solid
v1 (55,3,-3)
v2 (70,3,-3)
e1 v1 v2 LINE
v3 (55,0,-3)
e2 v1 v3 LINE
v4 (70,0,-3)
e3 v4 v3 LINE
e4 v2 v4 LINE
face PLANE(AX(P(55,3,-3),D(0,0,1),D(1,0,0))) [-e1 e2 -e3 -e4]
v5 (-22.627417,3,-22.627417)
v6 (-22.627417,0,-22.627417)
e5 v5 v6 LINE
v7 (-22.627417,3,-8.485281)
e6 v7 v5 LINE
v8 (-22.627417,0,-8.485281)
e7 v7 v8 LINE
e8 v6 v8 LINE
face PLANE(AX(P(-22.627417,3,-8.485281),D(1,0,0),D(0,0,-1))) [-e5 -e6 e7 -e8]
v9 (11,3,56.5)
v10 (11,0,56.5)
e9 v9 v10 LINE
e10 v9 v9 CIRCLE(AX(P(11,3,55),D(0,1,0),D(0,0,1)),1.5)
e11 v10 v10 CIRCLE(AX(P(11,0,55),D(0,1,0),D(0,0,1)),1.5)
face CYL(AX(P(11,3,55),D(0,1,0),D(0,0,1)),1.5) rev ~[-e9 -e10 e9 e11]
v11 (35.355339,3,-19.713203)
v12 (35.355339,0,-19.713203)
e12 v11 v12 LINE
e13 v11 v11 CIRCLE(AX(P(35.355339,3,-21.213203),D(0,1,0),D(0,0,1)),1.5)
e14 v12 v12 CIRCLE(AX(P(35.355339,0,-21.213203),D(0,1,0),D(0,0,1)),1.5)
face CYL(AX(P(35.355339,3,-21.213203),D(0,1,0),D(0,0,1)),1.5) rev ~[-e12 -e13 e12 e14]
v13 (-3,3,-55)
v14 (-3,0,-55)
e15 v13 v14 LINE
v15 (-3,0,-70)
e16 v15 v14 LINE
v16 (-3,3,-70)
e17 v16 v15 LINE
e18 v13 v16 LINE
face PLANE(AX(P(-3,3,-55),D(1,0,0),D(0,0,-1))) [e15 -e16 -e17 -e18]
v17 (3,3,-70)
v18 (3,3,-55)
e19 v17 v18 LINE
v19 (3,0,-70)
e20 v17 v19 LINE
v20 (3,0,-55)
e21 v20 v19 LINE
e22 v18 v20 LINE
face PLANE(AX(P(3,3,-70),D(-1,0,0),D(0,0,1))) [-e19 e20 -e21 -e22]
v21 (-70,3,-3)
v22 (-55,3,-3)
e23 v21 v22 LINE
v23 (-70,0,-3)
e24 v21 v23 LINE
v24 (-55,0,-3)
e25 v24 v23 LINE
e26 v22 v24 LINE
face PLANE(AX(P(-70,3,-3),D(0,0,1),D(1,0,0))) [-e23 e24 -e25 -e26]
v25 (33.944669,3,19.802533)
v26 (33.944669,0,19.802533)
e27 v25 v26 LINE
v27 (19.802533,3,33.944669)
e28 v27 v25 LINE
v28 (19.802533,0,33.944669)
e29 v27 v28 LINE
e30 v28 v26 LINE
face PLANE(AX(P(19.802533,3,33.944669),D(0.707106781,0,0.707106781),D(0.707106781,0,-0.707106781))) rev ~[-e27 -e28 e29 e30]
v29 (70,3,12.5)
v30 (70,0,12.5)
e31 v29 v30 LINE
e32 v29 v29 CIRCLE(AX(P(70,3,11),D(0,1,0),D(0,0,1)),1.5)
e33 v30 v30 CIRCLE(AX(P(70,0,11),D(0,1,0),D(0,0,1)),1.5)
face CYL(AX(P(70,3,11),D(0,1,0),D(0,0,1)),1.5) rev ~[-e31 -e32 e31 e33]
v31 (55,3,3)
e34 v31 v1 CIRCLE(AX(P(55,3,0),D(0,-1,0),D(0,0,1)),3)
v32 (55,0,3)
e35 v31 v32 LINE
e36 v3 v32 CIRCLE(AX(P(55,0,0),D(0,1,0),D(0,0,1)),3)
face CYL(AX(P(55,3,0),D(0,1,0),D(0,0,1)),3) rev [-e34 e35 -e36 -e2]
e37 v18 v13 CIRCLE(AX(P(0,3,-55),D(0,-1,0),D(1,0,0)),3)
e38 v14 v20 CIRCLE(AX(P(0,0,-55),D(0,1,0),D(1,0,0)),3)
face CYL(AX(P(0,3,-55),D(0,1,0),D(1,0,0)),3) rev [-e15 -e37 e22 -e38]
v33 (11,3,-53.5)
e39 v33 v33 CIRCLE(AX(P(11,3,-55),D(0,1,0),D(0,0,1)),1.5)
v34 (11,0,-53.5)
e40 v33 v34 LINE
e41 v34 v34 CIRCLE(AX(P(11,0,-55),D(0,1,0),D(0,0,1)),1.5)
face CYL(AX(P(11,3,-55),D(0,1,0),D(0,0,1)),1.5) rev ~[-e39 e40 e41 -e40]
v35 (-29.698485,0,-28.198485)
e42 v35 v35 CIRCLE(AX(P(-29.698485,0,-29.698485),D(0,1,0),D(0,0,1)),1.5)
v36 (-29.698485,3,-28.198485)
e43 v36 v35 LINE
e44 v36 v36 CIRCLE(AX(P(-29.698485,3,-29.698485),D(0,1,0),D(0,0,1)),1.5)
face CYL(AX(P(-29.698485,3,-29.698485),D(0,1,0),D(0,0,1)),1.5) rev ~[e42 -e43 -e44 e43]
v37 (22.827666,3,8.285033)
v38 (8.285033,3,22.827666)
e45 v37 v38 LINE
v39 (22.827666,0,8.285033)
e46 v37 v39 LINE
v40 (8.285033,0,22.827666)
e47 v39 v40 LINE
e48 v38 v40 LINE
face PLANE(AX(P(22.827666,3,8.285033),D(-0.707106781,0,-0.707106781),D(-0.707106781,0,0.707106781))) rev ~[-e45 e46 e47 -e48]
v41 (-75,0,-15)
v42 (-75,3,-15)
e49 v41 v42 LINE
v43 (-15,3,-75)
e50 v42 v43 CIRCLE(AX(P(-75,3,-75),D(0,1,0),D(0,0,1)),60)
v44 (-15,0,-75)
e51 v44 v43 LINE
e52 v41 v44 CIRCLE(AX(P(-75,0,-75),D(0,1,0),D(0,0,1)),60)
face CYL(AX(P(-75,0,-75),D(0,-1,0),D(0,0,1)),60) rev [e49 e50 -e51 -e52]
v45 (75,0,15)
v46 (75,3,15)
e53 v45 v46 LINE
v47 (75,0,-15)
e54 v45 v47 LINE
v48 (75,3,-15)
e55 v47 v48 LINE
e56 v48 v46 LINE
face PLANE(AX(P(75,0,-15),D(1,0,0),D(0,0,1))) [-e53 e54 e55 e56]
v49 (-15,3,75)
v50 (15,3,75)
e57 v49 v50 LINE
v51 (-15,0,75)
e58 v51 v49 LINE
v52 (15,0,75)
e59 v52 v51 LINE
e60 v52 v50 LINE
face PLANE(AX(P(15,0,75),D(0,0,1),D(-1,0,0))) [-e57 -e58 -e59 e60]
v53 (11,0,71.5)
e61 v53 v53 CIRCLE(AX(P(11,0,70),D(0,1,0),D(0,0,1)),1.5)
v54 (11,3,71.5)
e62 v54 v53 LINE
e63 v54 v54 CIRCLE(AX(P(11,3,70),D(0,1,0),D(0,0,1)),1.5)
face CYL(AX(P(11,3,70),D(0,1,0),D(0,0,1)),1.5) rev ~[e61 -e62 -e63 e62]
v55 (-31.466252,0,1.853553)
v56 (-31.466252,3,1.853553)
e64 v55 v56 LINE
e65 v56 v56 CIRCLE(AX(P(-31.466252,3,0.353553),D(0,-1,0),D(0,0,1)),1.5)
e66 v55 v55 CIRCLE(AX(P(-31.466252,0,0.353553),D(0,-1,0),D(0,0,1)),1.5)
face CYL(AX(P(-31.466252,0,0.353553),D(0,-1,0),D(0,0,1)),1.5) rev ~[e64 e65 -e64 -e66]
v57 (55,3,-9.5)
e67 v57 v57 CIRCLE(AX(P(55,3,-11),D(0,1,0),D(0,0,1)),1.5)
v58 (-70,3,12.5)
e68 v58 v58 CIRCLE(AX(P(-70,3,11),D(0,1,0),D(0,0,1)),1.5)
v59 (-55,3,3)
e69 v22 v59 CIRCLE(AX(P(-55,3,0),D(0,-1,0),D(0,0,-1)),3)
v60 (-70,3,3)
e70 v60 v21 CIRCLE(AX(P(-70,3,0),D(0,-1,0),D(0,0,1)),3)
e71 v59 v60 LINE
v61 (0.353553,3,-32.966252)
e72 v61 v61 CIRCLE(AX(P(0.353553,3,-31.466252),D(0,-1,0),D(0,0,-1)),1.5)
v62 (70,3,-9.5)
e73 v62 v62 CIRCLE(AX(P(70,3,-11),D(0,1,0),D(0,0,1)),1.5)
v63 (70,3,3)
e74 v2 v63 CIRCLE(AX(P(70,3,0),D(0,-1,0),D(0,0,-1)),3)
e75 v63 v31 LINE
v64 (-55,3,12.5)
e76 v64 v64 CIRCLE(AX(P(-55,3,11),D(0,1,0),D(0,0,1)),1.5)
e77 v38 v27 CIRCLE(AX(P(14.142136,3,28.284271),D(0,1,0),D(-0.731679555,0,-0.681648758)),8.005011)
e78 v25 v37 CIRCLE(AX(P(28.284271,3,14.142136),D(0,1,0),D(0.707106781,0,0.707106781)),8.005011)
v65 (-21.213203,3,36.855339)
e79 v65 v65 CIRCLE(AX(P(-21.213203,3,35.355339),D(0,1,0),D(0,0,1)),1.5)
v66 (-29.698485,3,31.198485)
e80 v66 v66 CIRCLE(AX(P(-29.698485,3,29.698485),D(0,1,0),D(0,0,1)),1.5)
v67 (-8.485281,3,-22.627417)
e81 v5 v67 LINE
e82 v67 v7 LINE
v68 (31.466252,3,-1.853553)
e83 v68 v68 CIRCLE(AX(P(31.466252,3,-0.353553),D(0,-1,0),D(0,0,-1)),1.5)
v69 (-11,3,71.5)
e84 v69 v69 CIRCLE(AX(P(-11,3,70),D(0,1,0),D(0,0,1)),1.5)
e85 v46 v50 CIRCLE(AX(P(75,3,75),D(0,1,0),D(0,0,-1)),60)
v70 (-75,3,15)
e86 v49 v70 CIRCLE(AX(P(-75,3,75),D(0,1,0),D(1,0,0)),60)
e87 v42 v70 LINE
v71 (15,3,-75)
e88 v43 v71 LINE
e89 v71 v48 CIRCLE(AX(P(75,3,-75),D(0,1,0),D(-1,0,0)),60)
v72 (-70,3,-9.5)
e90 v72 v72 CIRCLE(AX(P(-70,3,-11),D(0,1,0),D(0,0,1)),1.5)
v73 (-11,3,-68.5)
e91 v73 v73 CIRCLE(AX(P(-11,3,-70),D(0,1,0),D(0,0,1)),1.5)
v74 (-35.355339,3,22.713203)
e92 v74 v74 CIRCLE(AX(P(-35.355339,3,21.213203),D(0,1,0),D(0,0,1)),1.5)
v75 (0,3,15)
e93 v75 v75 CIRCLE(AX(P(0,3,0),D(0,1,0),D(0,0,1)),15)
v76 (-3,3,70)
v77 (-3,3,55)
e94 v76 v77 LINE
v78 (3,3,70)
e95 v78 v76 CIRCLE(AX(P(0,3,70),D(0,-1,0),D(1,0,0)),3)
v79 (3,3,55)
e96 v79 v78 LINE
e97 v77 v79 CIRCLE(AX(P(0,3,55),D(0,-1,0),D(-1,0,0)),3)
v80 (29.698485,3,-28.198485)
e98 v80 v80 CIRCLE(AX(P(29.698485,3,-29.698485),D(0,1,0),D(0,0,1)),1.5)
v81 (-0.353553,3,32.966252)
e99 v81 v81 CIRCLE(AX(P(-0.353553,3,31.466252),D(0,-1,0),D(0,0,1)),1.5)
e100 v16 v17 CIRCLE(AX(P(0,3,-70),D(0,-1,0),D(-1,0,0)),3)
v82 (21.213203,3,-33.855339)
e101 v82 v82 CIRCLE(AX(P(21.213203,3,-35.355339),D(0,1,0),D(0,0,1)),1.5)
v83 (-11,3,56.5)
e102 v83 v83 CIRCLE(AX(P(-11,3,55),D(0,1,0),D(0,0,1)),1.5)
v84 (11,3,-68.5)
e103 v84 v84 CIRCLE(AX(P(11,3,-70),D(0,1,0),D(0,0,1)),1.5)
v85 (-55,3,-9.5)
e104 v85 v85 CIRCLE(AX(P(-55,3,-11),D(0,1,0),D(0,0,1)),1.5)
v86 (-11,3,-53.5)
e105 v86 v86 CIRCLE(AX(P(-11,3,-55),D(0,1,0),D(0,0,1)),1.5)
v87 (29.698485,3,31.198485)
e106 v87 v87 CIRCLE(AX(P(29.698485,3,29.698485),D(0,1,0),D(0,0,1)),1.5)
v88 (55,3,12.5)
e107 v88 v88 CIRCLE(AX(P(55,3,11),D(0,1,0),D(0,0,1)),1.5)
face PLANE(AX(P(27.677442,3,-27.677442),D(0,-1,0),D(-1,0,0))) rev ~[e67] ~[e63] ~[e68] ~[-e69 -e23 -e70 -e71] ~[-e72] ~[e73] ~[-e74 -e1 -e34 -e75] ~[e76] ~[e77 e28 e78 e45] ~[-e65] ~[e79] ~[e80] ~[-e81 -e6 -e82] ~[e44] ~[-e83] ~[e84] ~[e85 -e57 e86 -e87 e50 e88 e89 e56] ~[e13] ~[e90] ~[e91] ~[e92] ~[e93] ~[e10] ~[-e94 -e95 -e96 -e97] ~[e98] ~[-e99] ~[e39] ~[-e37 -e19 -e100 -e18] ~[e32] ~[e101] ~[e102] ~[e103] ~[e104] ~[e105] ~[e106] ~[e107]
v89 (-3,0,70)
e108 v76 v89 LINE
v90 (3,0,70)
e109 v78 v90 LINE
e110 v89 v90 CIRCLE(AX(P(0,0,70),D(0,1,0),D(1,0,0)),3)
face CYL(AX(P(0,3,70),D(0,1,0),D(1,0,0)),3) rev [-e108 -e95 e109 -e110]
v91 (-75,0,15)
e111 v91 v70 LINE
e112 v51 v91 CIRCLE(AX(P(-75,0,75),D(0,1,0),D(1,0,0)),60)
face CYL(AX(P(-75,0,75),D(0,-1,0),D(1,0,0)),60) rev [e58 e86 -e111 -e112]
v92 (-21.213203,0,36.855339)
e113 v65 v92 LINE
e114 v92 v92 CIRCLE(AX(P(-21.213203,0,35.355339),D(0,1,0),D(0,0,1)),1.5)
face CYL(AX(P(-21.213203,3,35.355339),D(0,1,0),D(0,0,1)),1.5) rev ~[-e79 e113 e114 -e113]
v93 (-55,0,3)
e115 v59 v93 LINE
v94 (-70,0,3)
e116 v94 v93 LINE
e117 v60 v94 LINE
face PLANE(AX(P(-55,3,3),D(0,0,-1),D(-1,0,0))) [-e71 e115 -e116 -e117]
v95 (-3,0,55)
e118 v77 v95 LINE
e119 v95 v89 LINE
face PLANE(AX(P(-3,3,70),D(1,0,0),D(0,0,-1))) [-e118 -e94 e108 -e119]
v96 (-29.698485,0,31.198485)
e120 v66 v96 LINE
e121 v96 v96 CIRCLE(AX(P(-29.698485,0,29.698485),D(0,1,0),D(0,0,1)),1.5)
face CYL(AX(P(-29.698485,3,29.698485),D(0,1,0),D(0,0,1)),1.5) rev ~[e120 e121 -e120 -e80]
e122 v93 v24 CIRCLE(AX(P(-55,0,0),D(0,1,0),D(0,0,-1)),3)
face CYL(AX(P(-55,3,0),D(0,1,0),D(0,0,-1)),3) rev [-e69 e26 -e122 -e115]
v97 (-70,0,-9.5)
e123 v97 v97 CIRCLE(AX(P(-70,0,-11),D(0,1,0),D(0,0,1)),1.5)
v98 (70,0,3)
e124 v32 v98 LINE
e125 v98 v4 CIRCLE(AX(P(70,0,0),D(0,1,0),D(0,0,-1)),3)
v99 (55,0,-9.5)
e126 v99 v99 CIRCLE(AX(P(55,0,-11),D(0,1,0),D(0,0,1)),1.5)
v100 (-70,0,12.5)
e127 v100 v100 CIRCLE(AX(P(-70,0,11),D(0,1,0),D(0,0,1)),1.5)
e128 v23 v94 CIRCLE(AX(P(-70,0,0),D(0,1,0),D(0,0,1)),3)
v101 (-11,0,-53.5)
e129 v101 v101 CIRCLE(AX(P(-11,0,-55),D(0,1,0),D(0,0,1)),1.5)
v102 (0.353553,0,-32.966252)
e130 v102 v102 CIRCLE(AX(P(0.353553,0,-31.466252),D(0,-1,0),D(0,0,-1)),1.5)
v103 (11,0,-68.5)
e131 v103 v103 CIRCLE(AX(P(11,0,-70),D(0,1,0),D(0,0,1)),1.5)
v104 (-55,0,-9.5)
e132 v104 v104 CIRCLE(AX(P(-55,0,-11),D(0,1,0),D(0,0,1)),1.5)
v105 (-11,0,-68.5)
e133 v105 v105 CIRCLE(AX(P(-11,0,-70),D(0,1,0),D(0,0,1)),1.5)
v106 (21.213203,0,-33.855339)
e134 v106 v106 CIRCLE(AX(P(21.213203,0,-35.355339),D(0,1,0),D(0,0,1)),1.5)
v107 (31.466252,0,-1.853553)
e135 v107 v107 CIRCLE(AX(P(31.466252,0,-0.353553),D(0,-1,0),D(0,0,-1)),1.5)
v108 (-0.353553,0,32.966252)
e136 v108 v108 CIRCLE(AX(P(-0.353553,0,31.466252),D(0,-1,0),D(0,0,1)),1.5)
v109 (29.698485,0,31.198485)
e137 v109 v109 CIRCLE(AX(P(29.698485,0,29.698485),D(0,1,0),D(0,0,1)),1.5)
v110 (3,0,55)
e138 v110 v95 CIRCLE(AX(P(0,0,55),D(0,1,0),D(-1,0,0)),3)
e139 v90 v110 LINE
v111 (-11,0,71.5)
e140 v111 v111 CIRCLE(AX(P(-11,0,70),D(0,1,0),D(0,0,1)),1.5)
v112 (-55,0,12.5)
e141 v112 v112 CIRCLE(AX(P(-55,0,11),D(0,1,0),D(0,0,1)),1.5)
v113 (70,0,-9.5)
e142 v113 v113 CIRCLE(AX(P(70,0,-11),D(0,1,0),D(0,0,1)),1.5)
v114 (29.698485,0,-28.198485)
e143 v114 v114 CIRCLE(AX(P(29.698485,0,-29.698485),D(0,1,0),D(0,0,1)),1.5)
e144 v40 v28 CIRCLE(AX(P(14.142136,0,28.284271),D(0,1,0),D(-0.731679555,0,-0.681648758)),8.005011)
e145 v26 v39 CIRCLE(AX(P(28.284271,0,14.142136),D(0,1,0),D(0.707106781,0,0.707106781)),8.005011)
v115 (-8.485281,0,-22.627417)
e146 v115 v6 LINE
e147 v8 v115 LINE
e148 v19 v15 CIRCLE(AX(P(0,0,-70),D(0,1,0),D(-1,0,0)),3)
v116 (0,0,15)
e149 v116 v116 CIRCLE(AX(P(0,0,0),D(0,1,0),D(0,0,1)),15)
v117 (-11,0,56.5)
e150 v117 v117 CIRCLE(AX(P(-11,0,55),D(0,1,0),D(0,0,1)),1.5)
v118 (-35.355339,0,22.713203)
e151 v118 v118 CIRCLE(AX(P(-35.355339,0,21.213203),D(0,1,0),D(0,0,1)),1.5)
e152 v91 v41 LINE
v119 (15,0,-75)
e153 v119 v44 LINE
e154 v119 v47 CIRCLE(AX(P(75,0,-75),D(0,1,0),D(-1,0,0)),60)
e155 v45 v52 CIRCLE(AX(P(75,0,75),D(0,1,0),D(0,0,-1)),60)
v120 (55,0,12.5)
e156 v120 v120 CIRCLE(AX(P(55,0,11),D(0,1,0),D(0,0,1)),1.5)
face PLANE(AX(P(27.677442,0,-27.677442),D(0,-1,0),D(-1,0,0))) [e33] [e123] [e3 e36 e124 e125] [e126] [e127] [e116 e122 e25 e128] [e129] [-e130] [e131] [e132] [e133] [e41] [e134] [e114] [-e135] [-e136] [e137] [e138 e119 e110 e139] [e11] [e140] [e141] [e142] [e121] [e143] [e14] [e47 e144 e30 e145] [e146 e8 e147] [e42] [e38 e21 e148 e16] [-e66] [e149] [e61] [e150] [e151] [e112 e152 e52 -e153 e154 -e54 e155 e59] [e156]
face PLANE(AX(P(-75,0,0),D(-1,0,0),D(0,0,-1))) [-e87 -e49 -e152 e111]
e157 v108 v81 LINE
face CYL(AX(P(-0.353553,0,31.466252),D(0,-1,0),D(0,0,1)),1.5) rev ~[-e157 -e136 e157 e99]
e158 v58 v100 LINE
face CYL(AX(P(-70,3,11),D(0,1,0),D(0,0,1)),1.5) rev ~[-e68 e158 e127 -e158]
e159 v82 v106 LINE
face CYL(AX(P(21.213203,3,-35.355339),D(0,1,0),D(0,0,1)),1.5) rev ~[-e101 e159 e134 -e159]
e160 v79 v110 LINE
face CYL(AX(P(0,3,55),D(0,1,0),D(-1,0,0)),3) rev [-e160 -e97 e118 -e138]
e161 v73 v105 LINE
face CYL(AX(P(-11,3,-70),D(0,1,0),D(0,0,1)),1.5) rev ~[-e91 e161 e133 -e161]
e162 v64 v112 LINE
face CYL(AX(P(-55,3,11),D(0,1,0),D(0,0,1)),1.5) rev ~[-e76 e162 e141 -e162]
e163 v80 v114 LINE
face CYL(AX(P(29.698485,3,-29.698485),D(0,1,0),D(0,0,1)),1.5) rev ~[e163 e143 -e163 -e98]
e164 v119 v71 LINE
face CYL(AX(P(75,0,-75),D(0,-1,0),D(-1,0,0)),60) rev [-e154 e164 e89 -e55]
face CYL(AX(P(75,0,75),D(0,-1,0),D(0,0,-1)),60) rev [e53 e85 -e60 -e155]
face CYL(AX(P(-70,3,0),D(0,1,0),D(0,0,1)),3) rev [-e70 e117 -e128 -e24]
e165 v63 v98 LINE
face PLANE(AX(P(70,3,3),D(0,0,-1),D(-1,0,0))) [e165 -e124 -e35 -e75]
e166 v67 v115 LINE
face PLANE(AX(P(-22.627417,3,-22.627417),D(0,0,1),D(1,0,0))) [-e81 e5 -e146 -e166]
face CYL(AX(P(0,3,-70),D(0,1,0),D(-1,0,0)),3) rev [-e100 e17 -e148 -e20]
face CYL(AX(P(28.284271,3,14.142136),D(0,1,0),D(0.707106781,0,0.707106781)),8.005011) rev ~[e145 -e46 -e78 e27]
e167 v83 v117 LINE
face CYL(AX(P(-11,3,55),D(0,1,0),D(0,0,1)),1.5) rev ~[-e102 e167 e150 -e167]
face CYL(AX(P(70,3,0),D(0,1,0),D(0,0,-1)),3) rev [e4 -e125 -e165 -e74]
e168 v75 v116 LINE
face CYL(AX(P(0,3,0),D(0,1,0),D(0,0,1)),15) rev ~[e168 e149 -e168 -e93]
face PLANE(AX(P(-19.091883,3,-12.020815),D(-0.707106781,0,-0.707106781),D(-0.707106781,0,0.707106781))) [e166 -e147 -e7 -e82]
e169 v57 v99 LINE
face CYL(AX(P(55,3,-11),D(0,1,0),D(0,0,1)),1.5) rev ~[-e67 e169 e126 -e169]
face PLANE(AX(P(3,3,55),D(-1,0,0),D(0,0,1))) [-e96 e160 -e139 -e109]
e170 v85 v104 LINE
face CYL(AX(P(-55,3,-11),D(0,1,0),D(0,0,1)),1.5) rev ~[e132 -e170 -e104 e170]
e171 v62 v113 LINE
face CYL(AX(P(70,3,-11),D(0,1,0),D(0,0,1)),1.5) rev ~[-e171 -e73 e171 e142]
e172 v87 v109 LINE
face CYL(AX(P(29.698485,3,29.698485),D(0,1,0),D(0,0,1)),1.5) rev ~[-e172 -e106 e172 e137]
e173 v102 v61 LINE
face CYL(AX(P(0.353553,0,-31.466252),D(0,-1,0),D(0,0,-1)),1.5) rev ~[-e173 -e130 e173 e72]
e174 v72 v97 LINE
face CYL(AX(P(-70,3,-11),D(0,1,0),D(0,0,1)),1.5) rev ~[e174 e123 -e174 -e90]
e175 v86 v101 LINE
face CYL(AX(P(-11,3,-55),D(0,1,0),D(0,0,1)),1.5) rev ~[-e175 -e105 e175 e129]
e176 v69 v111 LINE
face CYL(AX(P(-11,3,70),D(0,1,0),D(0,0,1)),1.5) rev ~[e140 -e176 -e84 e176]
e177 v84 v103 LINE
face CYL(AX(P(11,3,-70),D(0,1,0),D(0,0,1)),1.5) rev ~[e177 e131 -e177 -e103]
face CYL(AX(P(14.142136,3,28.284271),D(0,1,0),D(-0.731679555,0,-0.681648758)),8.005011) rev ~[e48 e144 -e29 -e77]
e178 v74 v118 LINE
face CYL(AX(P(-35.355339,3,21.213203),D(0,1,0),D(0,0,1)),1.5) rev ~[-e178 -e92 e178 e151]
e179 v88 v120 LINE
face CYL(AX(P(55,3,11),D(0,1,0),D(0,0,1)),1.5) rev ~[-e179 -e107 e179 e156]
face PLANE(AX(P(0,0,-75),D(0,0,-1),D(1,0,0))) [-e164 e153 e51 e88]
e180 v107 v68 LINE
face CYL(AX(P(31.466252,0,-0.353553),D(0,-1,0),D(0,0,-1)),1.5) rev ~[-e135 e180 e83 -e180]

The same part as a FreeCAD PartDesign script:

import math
import FreeCAD as App
import Part
import Sketcher
Q = App.Units.Quantity


def add_polygon(sketch, points):
    """Adds a closed chain of lines whose ends are joined by coincident constraints."""
    first, n = sketch.GeometryCount, len(points)
    for a, b in zip(points, points[1:] + points[:1]):
        sketch.addGeometry(Part.LineSegment(App.Vector(*a, 0), App.Vector(*b, 0)), False)
    for i in range(n):
        sketch.addConstraint(Sketcher.Constraint("Coincident", first + i, 2, first + (i + 1) % n, 1))

doc = App.newDocument("Part")
params = doc.addObject("Spreadsheet::Sheet", "Params")
for row, (alias, value) in enumerate([
    ("sketch1_radius", "60 mm"),
    ("sketch1_diameter", "2.5 mm"),
    ("sketch1_width", "30 mm"),
    ("pad1_length", "3 mm"),
    ("sketch2_diameter", "3 mm"),
    ("pocket1_length", "3 mm"),
    ("sketch3_length", "10 mm"),
    ("pocket2_length", "3 mm"),
    ("sketch4_length", "20 mm"),
    ("pocket3_length", "3 mm"),
    ("sketch5_length", "5 mm"),
    ("pocket4_length", "10 mm"),
    ("sketch6_diameter", "3 mm"),
    ("pocket5_length", "10 mm"),
    ("sketch7_diameter", "3 mm"),
    ("pocket6_length", "10 mm"),
    ("sketch8_diameter", "3 mm"),
    ("pocket7_length", "10 mm"),
    ("sketch9_diameter", "30 mm"),
    ("pocket8_length", "10 mm"),
    ("sketch10_diameter", "3 mm"),
    ("pocket9_length", "10 mm"),
    ("sketch11_radius", "3 mm"),
    ("sketch11_width", "15 mm"),
    ("pocket10_length", "10 mm"),
], start=1):
    params.set(f"A{row}", alias)
    params.set(f"B{row}", "=" + value)
    params.setAlias(f"B{row}", alias)

body = doc.addObject("PartDesign::Body", "Body")

# Sketch on XZ plane
sketch1 = body.newObject("Sketcher::SketchObject", "Sketch")
sketch1.AttachmentSupport = (doc.getObject("XZ_Plane"), [""])
sketch1.MapMode = "FlatFace"
sketch1.addGeometry(Part.ArcOfCircle(Part.Circle(App.Vector(75, 75, 0), App.Vector(0, 0, 1), 60), math.radians(-180), math.radians(-90)), False)
sketch1.addGeometry(Part.LineSegment(App.Vector(75, 15, 0), App.Vector(75, -15, 0)), False)
sketch1.addGeometry(Part.ArcOfCircle(Part.Circle(App.Vector(75, -75, 0), App.Vector(0, 0, 1), 60), math.radians(90), math.radians(180)), False)
sketch1.addGeometry(Part.LineSegment(App.Vector(15, -75, 0), App.Vector(-15, -75, 0)), False)
sketch1.addGeometry(Part.ArcOfCircle(Part.Circle(App.Vector(-75, -75, 0), App.Vector(0, 0, 1), 60), math.radians(0), math.radians(90)), False)
sketch1.addGeometry(Part.LineSegment(App.Vector(-75, -15, 0), App.Vector(-75, 15, 0)), False)
sketch1.addGeometry(Part.ArcOfCircle(Part.Circle(App.Vector(-75, 75, 0), App.Vector(0, 0, 1), 60), math.radians(-90), math.radians(0)), False)
sketch1.addGeometry(Part.LineSegment(App.Vector(-15, 75, 0), App.Vector(15, 75, 0)), False)
sketch1.addGeometry(Part.Circle(App.Vector(11, 70, 0), App.Vector(0, 0, 1), 1.2), False)
sketch1.addGeometry(Part.Circle(App.Vector(70, 11, 0), App.Vector(0, 0, 1), 1.2), False)
sketch1.addGeometry(Part.Circle(App.Vector(11, -70, 0), App.Vector(0, 0, 1), 1.2), False)
sketch1.addGeometry(Part.Circle(App.Vector(70, -11, 0), App.Vector(0, 0, 1), 1.2), False)
sketch1.addGeometry(Part.Circle(App.Vector(-70, 11, 0), App.Vector(0, 0, 1), 1.2), False)
sketch1.addGeometry(Part.Circle(App.Vector(-11, 70, 0), App.Vector(0, 0, 1), 1.2), False)
sketch1.addGeometry(Part.Circle(App.Vector(-70, -11, 0), App.Vector(0, 0, 1), 1.2), False)
sketch1.addGeometry(Part.Circle(App.Vector(-11, -70, 0), App.Vector(0, 0, 1), 1.2), False)
sketch1.addConstraint(Sketcher.Constraint("Coincident", 0, 2, 1, 1))
sketch1.addConstraint(Sketcher.Constraint("Coincident", 1, 2, 2, 1))
sketch1.addConstraint(Sketcher.Constraint("Coincident", 2, 2, 3, 1))
sketch1.addConstraint(Sketcher.Constraint("Coincident", 3, 2, 4, 1))
sketch1.addConstraint(Sketcher.Constraint("Coincident", 4, 2, 5, 1))
sketch1.addConstraint(Sketcher.Constraint("Coincident", 5, 2, 6, 1))
sketch1.addConstraint(Sketcher.Constraint("Coincident", 6, 2, 7, 1))
sketch1.addConstraint(Sketcher.Constraint("Coincident", 7, 2, 0, 1))
sketch1.addConstraint(Sketcher.Constraint("Vertical", 1))
sketch1.addConstraint(Sketcher.Constraint("Horizontal", 3))
sketch1.addConstraint(Sketcher.Constraint("Vertical", 5))
sketch1.addConstraint(Sketcher.Constraint("Horizontal", 7))
sketch1.addConstraint(Sketcher.Constraint("Equal", 0, 2))
sketch1.addConstraint(Sketcher.Constraint("Equal", 2, 4))
sketch1.addConstraint(Sketcher.Constraint("Equal", 4, 6))
sketch1.addConstraint(Sketcher.Constraint("Equal", 8, 9))
sketch1.addConstraint(Sketcher.Constraint("Equal", 9, 10))
sketch1.addConstraint(Sketcher.Constraint("Equal", 10, 11))
sketch1.addConstraint(Sketcher.Constraint("Equal", 11, 12))
sketch1.addConstraint(Sketcher.Constraint("Equal", 12, 13))
sketch1.addConstraint(Sketcher.Constraint("Equal", 13, 14))
sketch1.addConstraint(Sketcher.Constraint("Equal", 14, 15))
sketch1.addConstraint(Sketcher.Constraint("Symmetric", 0, 3, 4, 3, -1, 1))
sketch1.addConstraint(Sketcher.Constraint("Symmetric", 2, 3, 6, 3, -1, 1))
sketch1.addConstraint(Sketcher.Constraint("Symmetric", 11, 3, 12, 3, -1, 1))
sketch1.addConstraint(Sketcher.Constraint("Symmetric", 10, 3, 13, 3, -1, 1))
sketch1.addConstraint(Sketcher.Constraint("Symmetric", 9, 3, 14, 3, -1, 1))
sketch1.addConstraint(Sketcher.Constraint("Symmetric", 8, 3, 15, 3, -1, 1))
sketch1.addConstraint(Sketcher.Constraint("Symmetric", 2, 3, 4, 3, -2))
sketch1.addConstraint(Sketcher.Constraint("Symmetric", 9, 3, 12, 3, -2))
sketch1.addConstraint(Sketcher.Constraint("Symmetric", 8, 3, 13, 3, -2))
sketch1.addConstraint(Sketcher.Constraint("Horizontal", 4, 3, 2, 2))
sketch1.addConstraint(Sketcher.Constraint("Horizontal", 0, 3, 6, 2))
sketch1.addConstraint(Sketcher.Constraint("Vertical", 2, 3, 0, 2))
sketch1.addConstraint(Sketcher.Constraint("Vertical", 6, 3, 4, 2))
sketch1.addConstraint(Sketcher.Constraint("Equal", 7, 1))
sketch1.addConstraint(Sketcher.Constraint("Radius", 0, Q("60 mm")))
sketch1.addConstraint(Sketcher.Constraint("Diameter", 8, Q("2.5 mm")))
sketch1.addConstraint(Sketcher.Constraint("DistanceX", 3, 2, 3, 1, Q("30 mm")))
sketch1.addConstraint(Sketcher.Constraint("DistanceX", -1, 1, 8, 3, Q("11 mm")))
sketch1.addConstraint(Sketcher.Constraint("DistanceY", -1, 1, 8, 3, Q("70 mm")))
sketch1.addConstraint(Sketcher.Constraint("DistanceX", -1, 1, 9, 3, Q("70 mm")))
sketch1.addConstraint(Sketcher.Constraint("DistanceY", -1, 1, 9, 3, Q("11 mm")))
sketch1.setExpression("Constraints[36]", "Params.sketch1_radius")
sketch1.setExpression("Constraints[37]", "Params.sketch1_diameter")
sketch1.setExpression("Constraints[38]", "Params.sketch1_width")
pad1 = body.newObject("PartDesign::Pad", "Pad")
pad1.Profile = sketch1
pad1.setExpression("Length", "Params.pad1_length")
pad1.Reversed = True

# Sketch on XZ plane
sketch2 = body.newObject("Sketcher::SketchObject", "Sketch001")
sketch2.AttachmentSupport = (doc.getObject("XZ_Plane"), [""])
sketch2.MapMode = "FlatFace"
sketch2.addGeometry(Part.Circle(App.Vector(0.4, -31.5, 0), App.Vector(0, 0, 1), 1.5), False)
sketch2.addGeometry(Part.Circle(App.Vector(31.5, -0.4, 0), App.Vector(0, 0, 1), 1.5), False)
sketch2.addGeometry(Part.Circle(App.Vector(-0.4, 31.5, 0), App.Vector(0, 0, 1), 1.5), False)
sketch2.addGeometry(Part.Circle(App.Vector(-31.5, 0.4, 0), App.Vector(0, 0, 1), 1.5), False)
sketch2.addConstraint(Sketcher.Constraint("Equal", 0, 1))
sketch2.addConstraint(Sketcher.Constraint("Equal", 1, 2))
sketch2.addConstraint(Sketcher.Constraint("Equal", 2, 3))
sketch2.addConstraint(Sketcher.Constraint("Symmetric", 0, 3, 2, 3, -1, 1))
sketch2.addConstraint(Sketcher.Constraint("Symmetric", 1, 3, 3, 3, -1, 1))
sketch2.addConstraint(Sketcher.Constraint("Diameter", 0, Q("3 mm")))
sketch2.addConstraint(Sketcher.Constraint("DistanceX", 0, 3, 1, 3, Q("31.112698 mm")))
sketch2.addConstraint(Sketcher.Constraint("DistanceY", 0, 3, 1, 3, Q("31.112698 mm")))
sketch2.addConstraint(Sketcher.Constraint("DistanceY", 0, 3, -1, 1, Q("31.466252 mm")))
sketch2.addConstraint(Sketcher.Constraint("DistanceX", -1, 1, 1, 3, Q("31.466252 mm")))
sketch2.setExpression("Constraints[5]", "Params.sketch2_diameter")
pocket1 = body.newObject("PartDesign::Pocket", "Pocket")
pocket1.Profile = sketch2
pocket1.setExpression("Length", "Params.pocket1_length")

# Sketch on XZ plane
sketch3 = body.newObject("Sketcher::SketchObject", "Sketch002")
sketch3.AttachmentSupport = (doc.getObject("XZ_Plane"), [""])
sketch3.MapMode = "FlatFace"
sketch3.AttachmentOffset = App.Placement(App.Vector(0, 0, -3), App.Rotation())
add_polygon(sketch3, [(-12, -19), (-23, -23), (-19, -12)])  # lines 0-2
sketch3.addConstraint(Sketcher.Constraint("Equal", 0, 1))
sketch3.addConstraint(Sketcher.Constraint("Angle", 2, Q("-45 deg")))
sketch3.addConstraint(Sketcher.Constraint("Distance", 2, Q("10 mm")))
sketch3.addConstraint(Sketcher.Constraint("DistanceY", 0, 2, 1, 2, Q("10.606602 mm")))
sketch3.addConstraint(Sketcher.Constraint("DistanceX", 0, 2, -1, 1, Q("22.627417 mm")))
sketch3.addConstraint(Sketcher.Constraint("DistanceY", 0, 2, -1, 1, Q("22.627417 mm")))
sketch3.setExpression("Constraints[5]", "Params.sketch3_length")
pocket2 = body.newObject("PartDesign::Pocket", "Pocket001")
pocket2.Profile = sketch3
pocket2.setExpression("Length", "Params.pocket2_length")
pocket2.Reversed = True

# Sketch on XZ plane
sketch4 = body.newObject("Sketcher::SketchObject", "Sketch003")
sketch4.AttachmentSupport = (doc.getObject("XZ_Plane"), [""])
sketch4.MapMode = "FlatFace"
sketch4.AttachmentOffset = App.Placement(App.Vector(0, 0, -3), App.Rotation())
sketch4.addGeometry(Part.ArcOfCircle(Part.Circle(App.Vector(28, 14, 0), App.Vector(0, 0, 1), 8), math.radians(-133), math.radians(45)), False)
sketch4.addGeometry(Part.LineSegment(App.Vector(23, 8, 0), App.Vector(8, 23, 0)), False)
sketch4.addGeometry(Part.ArcOfCircle(Part.Circle(App.Vector(14, 28, 0), App.Vector(0, 0, 1), 8), math.radians(45), math.radians(223)), False)
sketch4.addGeometry(Part.LineSegment(App.Vector(20, 34, 0), App.Vector(34, 20, 0)), False)
sketch4.addConstraint(Sketcher.Constraint("Coincident", 0, 1, 1, 1))
sketch4.addConstraint(Sketcher.Constraint("Coincident", 1, 2, 2, 2))
sketch4.addConstraint(Sketcher.Constraint("Tangent", 2, 1, 3, 1))
sketch4.addConstraint(Sketcher.Constraint("Tangent", 3, 2, 0, 2))
sketch4.addConstraint(Sketcher.Constraint("Equal", 0, 2))
sketch4.addConstraint(Sketcher.Constraint("Parallel", 1, 3))
sketch4.addConstraint(Sketcher.Constraint("Angle", 1, Q("135 deg")))
sketch4.addConstraint(Sketcher.Constraint("Distance", 3, Q("20 mm")))
sketch4.addConstraint(Sketcher.Constraint("Radius", 0, Q("8.005011 mm")))
sketch4.addConstraint(Sketcher.Constraint("DistanceX", 1, 2, 2, 1, Q("11.5175 mm")))
sketch4.addConstraint(Sketcher.Constraint("DistanceX", -1, 1, 0, 3, Q("28.284271 mm")))
sketch4.addConstraint(Sketcher.Constraint("DistanceY", -1, 1, 2, 3, Q("28.284271 mm")))
sketch4.setExpression("Constraints[7]", "Params.sketch4_length")
pocket3 = body.newObject("PartDesign::Pocket", "Pocket002")
pocket3.Profile = sketch4
pocket3.setExpression("Length", "Params.pocket3_length")
pocket3.Reversed = True

# Sketch on XZ plane
sketch5 = body.newObject("Sketcher::SketchObject", "Sketch004")
sketch5.AttachmentSupport = (doc.getObject("XZ_Plane"), [""])
sketch5.MapMode = "FlatFace"
sketch5.AttachmentOffset = App.Placement(App.Vector(0, 0, -3), App.Rotation())
add_polygon(sketch5, [(-23, -23), (-23, -8), (-19, -12)])  # lines 0-2
add_polygon(sketch5, [(-23, -23), (-12, -19), (-8, -23)])  # lines 3-5
sketch5.addConstraint(Sketcher.Constraint("Vertical", 0))
sketch5.addConstraint(Sketcher.Constraint("Horizontal", 5))
sketch5.addConstraint(Sketcher.Constraint("Coincident", 5, 2, 2, 2))
sketch5.addConstraint(Sketcher.Constraint("Parallel", 1, 4))
sketch5.addConstraint(Sketcher.Constraint("Equal", 5, 0))
sketch5.addConstraint(Sketcher.Constraint("Equal", 2, 3))
sketch5.addConstraint(Sketcher.Constraint("Equal", 1, 4))
sketch5.addConstraint(Sketcher.Constraint("Distance", 1, Q("5 mm")))
sketch5.addConstraint(Sketcher.Constraint("DistanceY", 2, 2, 1, 2, Q("10.606602 mm")))
sketch5.addConstraint(Sketcher.Constraint("DistanceY", 0, 2, -1, 1, Q("8.485281 mm")))
sketch5.addConstraint(Sketcher.Constraint("DistanceX", 4, 2, -1, 1, Q("8.485281 mm")))
sketch5.setExpression("Constraints[13]", "Params.sketch5_length")
pocket4 = body.newObject("PartDesign::Pocket", "Pocket003")
pocket4.Profile = sketch5
pocket4.setExpression("Length", "Params.pocket4_length")
pocket4.Reversed = True

# Sketch on XZ plane
sketch6 = body.newObject("Sketcher::SketchObject", "Sketch005")
sketch6.AttachmentSupport = (doc.getObject("XZ_Plane"), [""])
sketch6.MapMode = "FlatFace"
sketch6.AttachmentOffset = App.Placement(App.Vector(0, 0, -3), App.Rotation())
sketch6.addGeometry(Part.Circle(App.Vector(-35.4, 21.2, 0), App.Vector(0, 0, 1), 1.5), False)
sketch6.addGeometry(Part.Circle(App.Vector(-21.2, 35.4, 0), App.Vector(0, 0, 1), 1.5), False)
sketch6.addGeometry(Part.Circle(App.Vector(35.4, -21.2, 0), App.Vector(0, 0, 1), 1.5), False)
sketch6.addGeometry(Part.Circle(App.Vector(21.2, -35.4, 0), App.Vector(0, 0, 1), 1.5), False)
sketch6.addConstraint(Sketcher.Constraint("Equal", 0, 1))
sketch6.addConstraint(Sketcher.Constraint("Equal", 1, 2))
sketch6.addConstraint(Sketcher.Constraint("Equal", 2, 3))
sketch6.addConstraint(Sketcher.Constraint("Symmetric", 0, 3, 2, 3, -1, 1))
sketch6.addConstraint(Sketcher.Constraint("Symmetric", 1, 3, 3, 3, -1, 1))
sketch6.addConstraint(Sketcher.Constraint("Diameter", 0, Q("3 mm")))
sketch6.addConstraint(Sketcher.Constraint("DistanceX", 0, 3, -1, 1, Q("35.355339 mm")))
sketch6.addConstraint(Sketcher.Constraint("DistanceY", -1, 1, 1, 3, Q("35.355339 mm")))
sketch6.addConstraint(Sketcher.Constraint("DistanceY", -1, 1, 0, 3, Q("21.213203 mm")))
sketch6.addConstraint(Sketcher.Constraint("DistanceX", 1, 3, -1, 1, Q("21.213203 mm")))
sketch6.setExpression("Constraints[5]", "Params.sketch6_diameter")
pocket5 = body.newObject("PartDesign::Pocket", "Pocket004")
pocket5.Profile = sketch6
pocket5.setExpression("Length", "Params.pocket5_length")
pocket5.Reversed = True

# Sketch on XZ plane
sketch7 = body.newObject("Sketcher::SketchObject", "Sketch006")
sketch7.AttachmentSupport = (doc.getObject("XZ_Plane"), [""])
sketch7.MapMode = "FlatFace"
sketch7.AttachmentOffset = App.Placement(App.Vector(0, 0, -3), App.Rotation())
sketch7.addGeometry(Part.Circle(App.Vector(-29.7, -29.7, 0), App.Vector(0, 0, 1), 1.5), False)
sketch7.addGeometry(Part.Circle(App.Vector(29.7, -29.7, 0), App.Vector(0, 0, 1), 1.5), False)
sketch7.addGeometry(Part.Circle(App.Vector(29.7, 29.7, 0), App.Vector(0, 0, 1), 1.5), False)
sketch7.addGeometry(Part.Circle(App.Vector(-29.7, 29.7, 0), App.Vector(0, 0, 1), 1.5), False)
sketch7.addConstraint(Sketcher.Constraint("Equal", 0, 1))
sketch7.addConstraint(Sketcher.Constraint("Equal", 1, 2))
sketch7.addConstraint(Sketcher.Constraint("Equal", 2, 3))
sketch7.addConstraint(Sketcher.Constraint("Symmetric", 0, 3, 2, 3, -1, 1))
sketch7.addConstraint(Sketcher.Constraint("Symmetric", 1, 3, 3, 3, -1, 1))
sketch7.addConstraint(Sketcher.Constraint("Symmetric", 0, 3, 1, 3, -2))
sketch7.addConstraint(Sketcher.Constraint("Diameter", 0, Q("3 mm")))
sketch7.addConstraint(Sketcher.Constraint("DistanceX", 0, 3, 1, 3, Q("59.39697 mm")))
sketch7.addConstraint(Sketcher.Constraint("DistanceY", 1, 3, 2, 3, Q("59.39697 mm")))
sketch7.setExpression("Constraints[6]", "Params.sketch7_diameter")
pocket6 = body.newObject("PartDesign::Pocket", "Pocket005")
pocket6.Profile = sketch7
pocket6.setExpression("Length", "Params.pocket6_length")
pocket6.Reversed = True

# Sketch on XZ plane
sketch8 = body.newObject("Sketcher::SketchObject", "Sketch007")
sketch8.AttachmentSupport = (doc.getObject("XZ_Plane"), [""])
sketch8.MapMode = "FlatFace"
sketch8.AttachmentOffset = App.Placement(App.Vector(0, 0, -3), App.Rotation())
sketch8.addGeometry(Part.Circle(App.Vector(-11, -55, 0), App.Vector(0, 0, 1), 1.5), False)
sketch8.addGeometry(Part.Circle(App.Vector(11, -55, 0), App.Vector(0, 0, 1), 1.5), False)
sketch8.addGeometry(Part.Circle(App.Vector(55, -11, 0), App.Vector(0, 0, 1), 1.5), False)
sketch8.addGeometry(Part.Circle(App.Vector(55, 11, 0), App.Vector(0, 0, 1), 1.5), False)
sketch8.addGeometry(Part.Circle(App.Vector(11, 55, 0), App.Vector(0, 0, 1), 1.5), False)
sketch8.addGeometry(Part.Circle(App.Vector(-11, 55, 0), App.Vector(0, 0, 1), 1.5), False)
sketch8.addGeometry(Part.Circle(App.Vector(-55, 11, 0), App.Vector(0, 0, 1), 1.5), False)
sketch8.addGeometry(Part.Circle(App.Vector(-55, -11, 0), App.Vector(0, 0, 1), 1.5), False)
sketch8.addConstraint(Sketcher.Constraint("Equal", 0, 1))
sketch8.addConstraint(Sketcher.Constraint("Equal", 1, 2))
sketch8.addConstraint(Sketcher.Constraint("Equal", 2, 3))
sketch8.addConstraint(Sketcher.Constraint("Equal", 3, 4))
sketch8.addConstraint(Sketcher.Constraint("Equal", 4, 5))
sketch8.addConstraint(Sketcher.Constraint("Equal", 5, 6))
sketch8.addConstraint(Sketcher.Constraint("Equal", 6, 7))
sketch8.addConstraint(Sketcher.Constraint("Symmetric", 0, 3, 4, 3, -1, 1))
sketch8.addConstraint(Sketcher.Constraint("Symmetric", 1, 3, 5, 3, -1, 1))
sketch8.addConstraint(Sketcher.Constraint("Symmetric", 2, 3, 6, 3, -1, 1))
sketch8.addConstraint(Sketcher.Constraint("Symmetric", 3, 3, 7, 3, -1, 1))
sketch8.addConstraint(Sketcher.Constraint("Symmetric", 0, 3, 1, 3, -2))
sketch8.addConstraint(Sketcher.Constraint("Symmetric", 3, 3, 6, 3, -2))
sketch8.addConstraint(Sketcher.Constraint("Diameter", 0, Q("3 mm")))
sketch8.addConstraint(Sketcher.Constraint("DistanceX", 0, 3, -1, 1, Q("11 mm")))
sketch8.addConstraint(Sketcher.Constraint("DistanceY", 0, 3, -1, 1, Q("55 mm")))
sketch8.addConstraint(Sketcher.Constraint("DistanceX", -1, 1, 2, 3, Q("55 mm")))
sketch8.addConstraint(Sketcher.Constraint("DistanceY", 2, 3, -1, 1, Q("11 mm")))
sketch8.setExpression("Constraints[13]", "Params.sketch8_diameter")
pocket7 = body.newObject("PartDesign::Pocket", "Pocket006")
pocket7.Profile = sketch8
pocket7.setExpression("Length", "Params.pocket7_length")
pocket7.Reversed = True

# Sketch on XZ plane
sketch9 = body.newObject("Sketcher::SketchObject", "Sketch008")
sketch9.AttachmentSupport = (doc.getObject("XZ_Plane"), [""])
sketch9.MapMode = "FlatFace"
sketch9.AttachmentOffset = App.Placement(App.Vector(0, 0, -3), App.Rotation())
sketch9.addGeometry(Part.Circle(App.Vector(0, 0, 0), App.Vector(0, 0, 1), 15), False)
sketch9.addConstraint(Sketcher.Constraint("Coincident", 0, 3, -1, 1))
sketch9.addConstraint(Sketcher.Constraint("Diameter", 0, Q("30 mm")))
sketch9.setExpression("Constraints[1]", "Params.sketch9_diameter")
pocket8 = body.newObject("PartDesign::Pocket", "Pocket007")
pocket8.Profile = sketch9
pocket8.setExpression("Length", "Params.pocket8_length")
pocket8.Reversed = True

# Sketch on XZ plane
sketch10 = body.newObject("Sketcher::SketchObject", "Sketch009")
sketch10.AttachmentSupport = (doc.getObject("XZ_Plane"), [""])
sketch10.MapMode = "FlatFace"
sketch10.AttachmentOffset = App.Placement(App.Vector(0, 0, -3), App.Rotation())
sketch10.addGeometry(Part.Circle(App.Vector(11, -70, 0), App.Vector(0, 0, 1), 1.5), False)
sketch10.addGeometry(Part.Circle(App.Vector(-11, -70, 0), App.Vector(0, 0, 1), 1.5), False)
sketch10.addGeometry(Part.Circle(App.Vector(70, -11, 0), App.Vector(0, 0, 1), 1.5), False)
sketch10.addGeometry(Part.Circle(App.Vector(70, 11, 0), App.Vector(0, 0, 1), 1.5), False)
sketch10.addGeometry(Part.Circle(App.Vector(11, 70, 0), App.Vector(0, 0, 1), 1.5), False)
sketch10.addGeometry(Part.Circle(App.Vector(-11, 70, 0), App.Vector(0, 0, 1), 1.5), False)
sketch10.addGeometry(Part.Circle(App.Vector(-70, 11, 0), App.Vector(0, 0, 1), 1.5), False)
sketch10.addGeometry(Part.Circle(App.Vector(-70, -11, 0), App.Vector(0, 0, 1), 1.5), False)
sketch10.addConstraint(Sketcher.Constraint("Equal", 0, 1))
sketch10.addConstraint(Sketcher.Constraint("Equal", 1, 2))
sketch10.addConstraint(Sketcher.Constraint("Equal", 2, 3))
sketch10.addConstraint(Sketcher.Constraint("Equal", 3, 4))
sketch10.addConstraint(Sketcher.Constraint("Equal", 4, 5))
sketch10.addConstraint(Sketcher.Constraint("Equal", 5, 6))
sketch10.addConstraint(Sketcher.Constraint("Equal", 6, 7))
sketch10.addConstraint(Sketcher.Constraint("Symmetric", 1, 3, 4, 3, -1, 1))
sketch10.addConstraint(Sketcher.Constraint("Symmetric", 0, 3, 5, 3, -1, 1))
sketch10.addConstraint(Sketcher.Constraint("Symmetric", 2, 3, 6, 3, -1, 1))
sketch10.addConstraint(Sketcher.Constraint("Symmetric", 3, 3, 7, 3, -1, 1))
sketch10.addConstraint(Sketcher.Constraint("Symmetric", 0, 3, 1, 3, -2))
sketch10.addConstraint(Sketcher.Constraint("Symmetric", 3, 3, 6, 3, -2))
sketch10.addConstraint(Sketcher.Constraint("Diameter", 0, Q("3 mm")))
sketch10.addConstraint(Sketcher.Constraint("DistanceX", -1, 1, 0, 3, Q("11 mm")))
sketch10.addConstraint(Sketcher.Constraint("DistanceY", 0, 3, -1, 1, Q("70 mm")))
sketch10.addConstraint(Sketcher.Constraint("DistanceX", -1, 1, 2, 3, Q("70 mm")))
sketch10.addConstraint(Sketcher.Constraint("DistanceY", 2, 3, -1, 1, Q("11 mm")))
sketch10.setExpression("Constraints[13]", "Params.sketch10_diameter")
pocket9 = body.newObject("PartDesign::Pocket", "Pocket008")
pocket9.Profile = sketch10
pocket9.setExpression("Length", "Params.pocket9_length")
pocket9.Reversed = True

# Sketch on XZ plane
sketch11 = body.newObject("Sketcher::SketchObject", "Sketch010")
sketch11.AttachmentSupport = (doc.getObject("XZ_Plane"), [""])
sketch11.MapMode = "FlatFace"
sketch11.AttachmentOffset = App.Placement(App.Vector(0, 0, -3), App.Rotation())
sketch11.addGeometry(Part.LineSegment(App.Vector(3, -55, 0), App.Vector(3, -70, 0)), False)
sketch11.addGeometry(Part.ArcOfCircle(Part.Circle(App.Vector(0, -70, 0), App.Vector(0, 0, 1), 3), math.radians(180), math.radians(360)), False)
sketch11.addGeometry(Part.LineSegment(App.Vector(-3, -70, 0), App.Vector(-3, -55, 0)), False)
sketch11.addGeometry(Part.ArcOfCircle(Part.Circle(App.Vector(0, -55, 0), App.Vector(0, 0, 1), 3), math.radians(0), math.radians(180)), False)
sketch11.addGeometry(Part.LineSegment(App.Vector(55, 3, 0), App.Vector(70, 3, 0)), False)
sketch11.addGeometry(Part.ArcOfCircle(Part.Circle(App.Vector(70, 0, 0), App.Vector(0, 0, 1), 3), math.radians(-90), math.radians(90)), False)
sketch11.addGeometry(Part.LineSegment(App.Vector(70, -3, 0), App.Vector(55, -3, 0)), False)
sketch11.addGeometry(Part.ArcOfCircle(Part.Circle(App.Vector(55, 0, 0), App.Vector(0, 0, 1), 3), math.radians(90), math.radians(270)), False)
sketch11.addGeometry(Part.LineSegment(App.Vector(-3, 55, 0), App.Vector(-3, 70, 0)), False)
sketch11.addGeometry(Part.ArcOfCircle(Part.Circle(App.Vector(0, 70, 0), App.Vector(0, 0, 1), 3), math.radians(0), math.radians(180)), False)
sketch11.addGeometry(Part.LineSegment(App.Vector(3, 70, 0), App.Vector(3, 55, 0)), False)
sketch11.addGeometry(Part.ArcOfCircle(Part.Circle(App.Vector(0, 55, 0), App.Vector(0, 0, 1), 3), math.radians(180), math.radians(360)), False)
sketch11.addGeometry(Part.LineSegment(App.Vector(-55, -3, 0), App.Vector(-70, -3, 0)), False)
sketch11.addGeometry(Part.ArcOfCircle(Part.Circle(App.Vector(-70, 0, 0), App.Vector(0, 0, 1), 3), math.radians(90), math.radians(270)), False)
sketch11.addGeometry(Part.LineSegment(App.Vector(-70, 3, 0), App.Vector(-55, 3, 0)), False)
sketch11.addGeometry(Part.ArcOfCircle(Part.Circle(App.Vector(-55, 0, 0), App.Vector(0, 0, 1), 3), math.radians(-90), math.radians(90)), False)
sketch11.addConstraint(Sketcher.Constraint("Tangent", 0, 2, 1, 2))
sketch11.addConstraint(Sketcher.Constraint("Tangent", 1, 1, 2, 1))
sketch11.addConstraint(Sketcher.Constraint("Tangent", 2, 2, 3, 2))
sketch11.addConstraint(Sketcher.Constraint("Tangent", 3, 1, 0, 1))
sketch11.addConstraint(Sketcher.Constraint("Tangent", 4, 2, 5, 2))
sketch11.addConstraint(Sketcher.Constraint("Tangent", 5, 1, 6, 1))
sketch11.addConstraint(Sketcher.Constraint("Tangent", 6, 2, 7, 2))
sketch11.addConstraint(Sketcher.Constraint("Tangent", 7, 1, 4, 1))
sketch11.addConstraint(Sketcher.Constraint("Tangent", 8, 2, 9, 2))
sketch11.addConstraint(Sketcher.Constraint("Tangent", 9, 1, 10, 1))
sketch11.addConstraint(Sketcher.Constraint("Tangent", 10, 2, 11, 2))
sketch11.addConstraint(Sketcher.Constraint("Tangent", 11, 1, 8, 1))
sketch11.addConstraint(Sketcher.Constraint("Tangent", 12, 2, 13, 2))
sketch11.addConstraint(Sketcher.Constraint("Tangent", 13, 1, 14, 1))
sketch11.addConstraint(Sketcher.Constraint("Tangent", 14, 2, 15, 2))
sketch11.addConstraint(Sketcher.Constraint("Tangent", 15, 1, 12, 1))
sketch11.addConstraint(Sketcher.Constraint("Vertical", 0))
sketch11.addConstraint(Sketcher.Constraint("Vertical", 2))
sketch11.addConstraint(Sketcher.Constraint("Horizontal", 4))
sketch11.addConstraint(Sketcher.Constraint("Horizontal", 6))
sketch11.addConstraint(Sketcher.Constraint("Vertical", 8))
sketch11.addConstraint(Sketcher.Constraint("Vertical", 10))
sketch11.addConstraint(Sketcher.Constraint("Horizontal", 12))
sketch11.addConstraint(Sketcher.Constraint("Horizontal", 14))
sketch11.addConstraint(Sketcher.Constraint("Equal", 3, 5))
sketch11.addConstraint(Sketcher.Constraint("Equal", 7, 9))
sketch11.addConstraint(Sketcher.Constraint("Equal", 11, 13))
sketch11.addConstraint(Sketcher.Constraint("Symmetric", 1, 3, 9, 3, -1, 1))
sketch11.addConstraint(Sketcher.Constraint("Symmetric", 5, 3, 13, 3, -1, 1))
sketch11.addConstraint(Sketcher.Constraint("Symmetric", 7, 3, 15, 3, -2))
sketch11.addConstraint(Sketcher.Constraint("Symmetric", 3, 3, 11, 3, -1))
sketch11.addConstraint(Sketcher.Constraint("Equal", 14, 0))
sketch11.addConstraint(Sketcher.Constraint("Radius", 1, Q("3 mm")))
sketch11.addConstraint(Sketcher.Constraint("DistanceX", 4, 1, 4, 2, Q("15 mm")))
sketch11.addConstraint(Sketcher.Constraint("DistanceY", 1, 3, -1, 1, Q("70 mm")))
sketch11.addConstraint(Sketcher.Constraint("DistanceX", -1, 1, 5, 3, Q("70 mm")))
sketch11.setExpression("Constraints[32]", "Params.sketch11_radius")
sketch11.setExpression("Constraints[33]", "Params.sketch11_width")
pocket10 = body.newObject("PartDesign::Pocket", "Pocket009")
pocket10.Profile = sketch11
pocket10.setExpression("Length", "Params.pocket10_length")
pocket10.Reversed = True

doc.recompute()
